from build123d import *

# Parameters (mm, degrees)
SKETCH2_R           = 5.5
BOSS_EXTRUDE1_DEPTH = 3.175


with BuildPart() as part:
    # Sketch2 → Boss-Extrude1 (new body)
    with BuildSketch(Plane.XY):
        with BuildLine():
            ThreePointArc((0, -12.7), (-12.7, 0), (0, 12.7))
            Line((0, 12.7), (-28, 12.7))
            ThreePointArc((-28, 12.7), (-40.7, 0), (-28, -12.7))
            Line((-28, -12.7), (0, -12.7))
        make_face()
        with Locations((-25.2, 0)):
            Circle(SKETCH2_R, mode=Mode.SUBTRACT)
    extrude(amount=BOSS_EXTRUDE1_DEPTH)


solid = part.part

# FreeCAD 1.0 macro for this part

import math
import FreeCAD as App
import Part
import Sketcher
Q = App.Units.Quantity

doc = App.newDocument("Part")
body = doc.addObject("PartDesign::Body", "Body")

# Sketch on XY plane
sketch1 = body.newObject("Sketcher::SketchObject", "Sketch")
sketch1.AttachmentSupport = (doc.getObject("XY_Plane"), [""])
sketch1.MapMode = "FlatFace"
sketch1.addGeometry([
    Part.ArcOfCircle(Part.Circle(App.Vector(0, 0, 0), App.Vector(0, 0, 1), 13), math.radians(90), math.radians(270)),  # 0
    Part.LineSegment(App.Vector(0, 13, 0), App.Vector(-28, 13, 0)),  # 1
    Part.ArcOfCircle(Part.Circle(App.Vector(-28, 0, 0), App.Vector(0, 0, 1), 13), math.radians(90), math.radians(270)),  # 2
    Part.LineSegment(App.Vector(-28, -13, 0), App.Vector(0, -13, 0)),  # 3
    Part.Circle(App.Vector(-25, 0, 0), App.Vector(0, 0, 1), 6),  # 4
], False)
sketch1.addConstraint([
    Sketcher.Constraint("Tangent", 0, 1, 1, 1),
    Sketcher.Constraint("Tangent", 1, 2, 2, 1),
    Sketcher.Constraint("Tangent", 2, 2, 3, 1),
    Sketcher.Constraint("Tangent", 3, 2, 0, 2),
    Sketcher.Constraint("Horizontal", 1),
    Sketcher.Constraint("Horizontal", 3),
    Sketcher.Constraint("Coincident", 0, 3, -1, 1),
    Sketcher.Constraint("PointOnObject", 4, 3, -1),
    Sketcher.Constraint("Diameter", 4, Q("11 mm")),
    Sketcher.Constraint("Radius", 0, Q("12.7 mm")),
    Sketcher.Constraint("DistanceX", 1, 2, 1, 1, Q("28 mm")),
    Sketcher.Constraint("DistanceX", 4, 3, -1, 1, Q("25.2 mm")),
])
pad1 = body.newObject("PartDesign::Pad", "Pad")
pad1.Profile = sketch1
pad1.Length = 3.175

doc.recompute()
